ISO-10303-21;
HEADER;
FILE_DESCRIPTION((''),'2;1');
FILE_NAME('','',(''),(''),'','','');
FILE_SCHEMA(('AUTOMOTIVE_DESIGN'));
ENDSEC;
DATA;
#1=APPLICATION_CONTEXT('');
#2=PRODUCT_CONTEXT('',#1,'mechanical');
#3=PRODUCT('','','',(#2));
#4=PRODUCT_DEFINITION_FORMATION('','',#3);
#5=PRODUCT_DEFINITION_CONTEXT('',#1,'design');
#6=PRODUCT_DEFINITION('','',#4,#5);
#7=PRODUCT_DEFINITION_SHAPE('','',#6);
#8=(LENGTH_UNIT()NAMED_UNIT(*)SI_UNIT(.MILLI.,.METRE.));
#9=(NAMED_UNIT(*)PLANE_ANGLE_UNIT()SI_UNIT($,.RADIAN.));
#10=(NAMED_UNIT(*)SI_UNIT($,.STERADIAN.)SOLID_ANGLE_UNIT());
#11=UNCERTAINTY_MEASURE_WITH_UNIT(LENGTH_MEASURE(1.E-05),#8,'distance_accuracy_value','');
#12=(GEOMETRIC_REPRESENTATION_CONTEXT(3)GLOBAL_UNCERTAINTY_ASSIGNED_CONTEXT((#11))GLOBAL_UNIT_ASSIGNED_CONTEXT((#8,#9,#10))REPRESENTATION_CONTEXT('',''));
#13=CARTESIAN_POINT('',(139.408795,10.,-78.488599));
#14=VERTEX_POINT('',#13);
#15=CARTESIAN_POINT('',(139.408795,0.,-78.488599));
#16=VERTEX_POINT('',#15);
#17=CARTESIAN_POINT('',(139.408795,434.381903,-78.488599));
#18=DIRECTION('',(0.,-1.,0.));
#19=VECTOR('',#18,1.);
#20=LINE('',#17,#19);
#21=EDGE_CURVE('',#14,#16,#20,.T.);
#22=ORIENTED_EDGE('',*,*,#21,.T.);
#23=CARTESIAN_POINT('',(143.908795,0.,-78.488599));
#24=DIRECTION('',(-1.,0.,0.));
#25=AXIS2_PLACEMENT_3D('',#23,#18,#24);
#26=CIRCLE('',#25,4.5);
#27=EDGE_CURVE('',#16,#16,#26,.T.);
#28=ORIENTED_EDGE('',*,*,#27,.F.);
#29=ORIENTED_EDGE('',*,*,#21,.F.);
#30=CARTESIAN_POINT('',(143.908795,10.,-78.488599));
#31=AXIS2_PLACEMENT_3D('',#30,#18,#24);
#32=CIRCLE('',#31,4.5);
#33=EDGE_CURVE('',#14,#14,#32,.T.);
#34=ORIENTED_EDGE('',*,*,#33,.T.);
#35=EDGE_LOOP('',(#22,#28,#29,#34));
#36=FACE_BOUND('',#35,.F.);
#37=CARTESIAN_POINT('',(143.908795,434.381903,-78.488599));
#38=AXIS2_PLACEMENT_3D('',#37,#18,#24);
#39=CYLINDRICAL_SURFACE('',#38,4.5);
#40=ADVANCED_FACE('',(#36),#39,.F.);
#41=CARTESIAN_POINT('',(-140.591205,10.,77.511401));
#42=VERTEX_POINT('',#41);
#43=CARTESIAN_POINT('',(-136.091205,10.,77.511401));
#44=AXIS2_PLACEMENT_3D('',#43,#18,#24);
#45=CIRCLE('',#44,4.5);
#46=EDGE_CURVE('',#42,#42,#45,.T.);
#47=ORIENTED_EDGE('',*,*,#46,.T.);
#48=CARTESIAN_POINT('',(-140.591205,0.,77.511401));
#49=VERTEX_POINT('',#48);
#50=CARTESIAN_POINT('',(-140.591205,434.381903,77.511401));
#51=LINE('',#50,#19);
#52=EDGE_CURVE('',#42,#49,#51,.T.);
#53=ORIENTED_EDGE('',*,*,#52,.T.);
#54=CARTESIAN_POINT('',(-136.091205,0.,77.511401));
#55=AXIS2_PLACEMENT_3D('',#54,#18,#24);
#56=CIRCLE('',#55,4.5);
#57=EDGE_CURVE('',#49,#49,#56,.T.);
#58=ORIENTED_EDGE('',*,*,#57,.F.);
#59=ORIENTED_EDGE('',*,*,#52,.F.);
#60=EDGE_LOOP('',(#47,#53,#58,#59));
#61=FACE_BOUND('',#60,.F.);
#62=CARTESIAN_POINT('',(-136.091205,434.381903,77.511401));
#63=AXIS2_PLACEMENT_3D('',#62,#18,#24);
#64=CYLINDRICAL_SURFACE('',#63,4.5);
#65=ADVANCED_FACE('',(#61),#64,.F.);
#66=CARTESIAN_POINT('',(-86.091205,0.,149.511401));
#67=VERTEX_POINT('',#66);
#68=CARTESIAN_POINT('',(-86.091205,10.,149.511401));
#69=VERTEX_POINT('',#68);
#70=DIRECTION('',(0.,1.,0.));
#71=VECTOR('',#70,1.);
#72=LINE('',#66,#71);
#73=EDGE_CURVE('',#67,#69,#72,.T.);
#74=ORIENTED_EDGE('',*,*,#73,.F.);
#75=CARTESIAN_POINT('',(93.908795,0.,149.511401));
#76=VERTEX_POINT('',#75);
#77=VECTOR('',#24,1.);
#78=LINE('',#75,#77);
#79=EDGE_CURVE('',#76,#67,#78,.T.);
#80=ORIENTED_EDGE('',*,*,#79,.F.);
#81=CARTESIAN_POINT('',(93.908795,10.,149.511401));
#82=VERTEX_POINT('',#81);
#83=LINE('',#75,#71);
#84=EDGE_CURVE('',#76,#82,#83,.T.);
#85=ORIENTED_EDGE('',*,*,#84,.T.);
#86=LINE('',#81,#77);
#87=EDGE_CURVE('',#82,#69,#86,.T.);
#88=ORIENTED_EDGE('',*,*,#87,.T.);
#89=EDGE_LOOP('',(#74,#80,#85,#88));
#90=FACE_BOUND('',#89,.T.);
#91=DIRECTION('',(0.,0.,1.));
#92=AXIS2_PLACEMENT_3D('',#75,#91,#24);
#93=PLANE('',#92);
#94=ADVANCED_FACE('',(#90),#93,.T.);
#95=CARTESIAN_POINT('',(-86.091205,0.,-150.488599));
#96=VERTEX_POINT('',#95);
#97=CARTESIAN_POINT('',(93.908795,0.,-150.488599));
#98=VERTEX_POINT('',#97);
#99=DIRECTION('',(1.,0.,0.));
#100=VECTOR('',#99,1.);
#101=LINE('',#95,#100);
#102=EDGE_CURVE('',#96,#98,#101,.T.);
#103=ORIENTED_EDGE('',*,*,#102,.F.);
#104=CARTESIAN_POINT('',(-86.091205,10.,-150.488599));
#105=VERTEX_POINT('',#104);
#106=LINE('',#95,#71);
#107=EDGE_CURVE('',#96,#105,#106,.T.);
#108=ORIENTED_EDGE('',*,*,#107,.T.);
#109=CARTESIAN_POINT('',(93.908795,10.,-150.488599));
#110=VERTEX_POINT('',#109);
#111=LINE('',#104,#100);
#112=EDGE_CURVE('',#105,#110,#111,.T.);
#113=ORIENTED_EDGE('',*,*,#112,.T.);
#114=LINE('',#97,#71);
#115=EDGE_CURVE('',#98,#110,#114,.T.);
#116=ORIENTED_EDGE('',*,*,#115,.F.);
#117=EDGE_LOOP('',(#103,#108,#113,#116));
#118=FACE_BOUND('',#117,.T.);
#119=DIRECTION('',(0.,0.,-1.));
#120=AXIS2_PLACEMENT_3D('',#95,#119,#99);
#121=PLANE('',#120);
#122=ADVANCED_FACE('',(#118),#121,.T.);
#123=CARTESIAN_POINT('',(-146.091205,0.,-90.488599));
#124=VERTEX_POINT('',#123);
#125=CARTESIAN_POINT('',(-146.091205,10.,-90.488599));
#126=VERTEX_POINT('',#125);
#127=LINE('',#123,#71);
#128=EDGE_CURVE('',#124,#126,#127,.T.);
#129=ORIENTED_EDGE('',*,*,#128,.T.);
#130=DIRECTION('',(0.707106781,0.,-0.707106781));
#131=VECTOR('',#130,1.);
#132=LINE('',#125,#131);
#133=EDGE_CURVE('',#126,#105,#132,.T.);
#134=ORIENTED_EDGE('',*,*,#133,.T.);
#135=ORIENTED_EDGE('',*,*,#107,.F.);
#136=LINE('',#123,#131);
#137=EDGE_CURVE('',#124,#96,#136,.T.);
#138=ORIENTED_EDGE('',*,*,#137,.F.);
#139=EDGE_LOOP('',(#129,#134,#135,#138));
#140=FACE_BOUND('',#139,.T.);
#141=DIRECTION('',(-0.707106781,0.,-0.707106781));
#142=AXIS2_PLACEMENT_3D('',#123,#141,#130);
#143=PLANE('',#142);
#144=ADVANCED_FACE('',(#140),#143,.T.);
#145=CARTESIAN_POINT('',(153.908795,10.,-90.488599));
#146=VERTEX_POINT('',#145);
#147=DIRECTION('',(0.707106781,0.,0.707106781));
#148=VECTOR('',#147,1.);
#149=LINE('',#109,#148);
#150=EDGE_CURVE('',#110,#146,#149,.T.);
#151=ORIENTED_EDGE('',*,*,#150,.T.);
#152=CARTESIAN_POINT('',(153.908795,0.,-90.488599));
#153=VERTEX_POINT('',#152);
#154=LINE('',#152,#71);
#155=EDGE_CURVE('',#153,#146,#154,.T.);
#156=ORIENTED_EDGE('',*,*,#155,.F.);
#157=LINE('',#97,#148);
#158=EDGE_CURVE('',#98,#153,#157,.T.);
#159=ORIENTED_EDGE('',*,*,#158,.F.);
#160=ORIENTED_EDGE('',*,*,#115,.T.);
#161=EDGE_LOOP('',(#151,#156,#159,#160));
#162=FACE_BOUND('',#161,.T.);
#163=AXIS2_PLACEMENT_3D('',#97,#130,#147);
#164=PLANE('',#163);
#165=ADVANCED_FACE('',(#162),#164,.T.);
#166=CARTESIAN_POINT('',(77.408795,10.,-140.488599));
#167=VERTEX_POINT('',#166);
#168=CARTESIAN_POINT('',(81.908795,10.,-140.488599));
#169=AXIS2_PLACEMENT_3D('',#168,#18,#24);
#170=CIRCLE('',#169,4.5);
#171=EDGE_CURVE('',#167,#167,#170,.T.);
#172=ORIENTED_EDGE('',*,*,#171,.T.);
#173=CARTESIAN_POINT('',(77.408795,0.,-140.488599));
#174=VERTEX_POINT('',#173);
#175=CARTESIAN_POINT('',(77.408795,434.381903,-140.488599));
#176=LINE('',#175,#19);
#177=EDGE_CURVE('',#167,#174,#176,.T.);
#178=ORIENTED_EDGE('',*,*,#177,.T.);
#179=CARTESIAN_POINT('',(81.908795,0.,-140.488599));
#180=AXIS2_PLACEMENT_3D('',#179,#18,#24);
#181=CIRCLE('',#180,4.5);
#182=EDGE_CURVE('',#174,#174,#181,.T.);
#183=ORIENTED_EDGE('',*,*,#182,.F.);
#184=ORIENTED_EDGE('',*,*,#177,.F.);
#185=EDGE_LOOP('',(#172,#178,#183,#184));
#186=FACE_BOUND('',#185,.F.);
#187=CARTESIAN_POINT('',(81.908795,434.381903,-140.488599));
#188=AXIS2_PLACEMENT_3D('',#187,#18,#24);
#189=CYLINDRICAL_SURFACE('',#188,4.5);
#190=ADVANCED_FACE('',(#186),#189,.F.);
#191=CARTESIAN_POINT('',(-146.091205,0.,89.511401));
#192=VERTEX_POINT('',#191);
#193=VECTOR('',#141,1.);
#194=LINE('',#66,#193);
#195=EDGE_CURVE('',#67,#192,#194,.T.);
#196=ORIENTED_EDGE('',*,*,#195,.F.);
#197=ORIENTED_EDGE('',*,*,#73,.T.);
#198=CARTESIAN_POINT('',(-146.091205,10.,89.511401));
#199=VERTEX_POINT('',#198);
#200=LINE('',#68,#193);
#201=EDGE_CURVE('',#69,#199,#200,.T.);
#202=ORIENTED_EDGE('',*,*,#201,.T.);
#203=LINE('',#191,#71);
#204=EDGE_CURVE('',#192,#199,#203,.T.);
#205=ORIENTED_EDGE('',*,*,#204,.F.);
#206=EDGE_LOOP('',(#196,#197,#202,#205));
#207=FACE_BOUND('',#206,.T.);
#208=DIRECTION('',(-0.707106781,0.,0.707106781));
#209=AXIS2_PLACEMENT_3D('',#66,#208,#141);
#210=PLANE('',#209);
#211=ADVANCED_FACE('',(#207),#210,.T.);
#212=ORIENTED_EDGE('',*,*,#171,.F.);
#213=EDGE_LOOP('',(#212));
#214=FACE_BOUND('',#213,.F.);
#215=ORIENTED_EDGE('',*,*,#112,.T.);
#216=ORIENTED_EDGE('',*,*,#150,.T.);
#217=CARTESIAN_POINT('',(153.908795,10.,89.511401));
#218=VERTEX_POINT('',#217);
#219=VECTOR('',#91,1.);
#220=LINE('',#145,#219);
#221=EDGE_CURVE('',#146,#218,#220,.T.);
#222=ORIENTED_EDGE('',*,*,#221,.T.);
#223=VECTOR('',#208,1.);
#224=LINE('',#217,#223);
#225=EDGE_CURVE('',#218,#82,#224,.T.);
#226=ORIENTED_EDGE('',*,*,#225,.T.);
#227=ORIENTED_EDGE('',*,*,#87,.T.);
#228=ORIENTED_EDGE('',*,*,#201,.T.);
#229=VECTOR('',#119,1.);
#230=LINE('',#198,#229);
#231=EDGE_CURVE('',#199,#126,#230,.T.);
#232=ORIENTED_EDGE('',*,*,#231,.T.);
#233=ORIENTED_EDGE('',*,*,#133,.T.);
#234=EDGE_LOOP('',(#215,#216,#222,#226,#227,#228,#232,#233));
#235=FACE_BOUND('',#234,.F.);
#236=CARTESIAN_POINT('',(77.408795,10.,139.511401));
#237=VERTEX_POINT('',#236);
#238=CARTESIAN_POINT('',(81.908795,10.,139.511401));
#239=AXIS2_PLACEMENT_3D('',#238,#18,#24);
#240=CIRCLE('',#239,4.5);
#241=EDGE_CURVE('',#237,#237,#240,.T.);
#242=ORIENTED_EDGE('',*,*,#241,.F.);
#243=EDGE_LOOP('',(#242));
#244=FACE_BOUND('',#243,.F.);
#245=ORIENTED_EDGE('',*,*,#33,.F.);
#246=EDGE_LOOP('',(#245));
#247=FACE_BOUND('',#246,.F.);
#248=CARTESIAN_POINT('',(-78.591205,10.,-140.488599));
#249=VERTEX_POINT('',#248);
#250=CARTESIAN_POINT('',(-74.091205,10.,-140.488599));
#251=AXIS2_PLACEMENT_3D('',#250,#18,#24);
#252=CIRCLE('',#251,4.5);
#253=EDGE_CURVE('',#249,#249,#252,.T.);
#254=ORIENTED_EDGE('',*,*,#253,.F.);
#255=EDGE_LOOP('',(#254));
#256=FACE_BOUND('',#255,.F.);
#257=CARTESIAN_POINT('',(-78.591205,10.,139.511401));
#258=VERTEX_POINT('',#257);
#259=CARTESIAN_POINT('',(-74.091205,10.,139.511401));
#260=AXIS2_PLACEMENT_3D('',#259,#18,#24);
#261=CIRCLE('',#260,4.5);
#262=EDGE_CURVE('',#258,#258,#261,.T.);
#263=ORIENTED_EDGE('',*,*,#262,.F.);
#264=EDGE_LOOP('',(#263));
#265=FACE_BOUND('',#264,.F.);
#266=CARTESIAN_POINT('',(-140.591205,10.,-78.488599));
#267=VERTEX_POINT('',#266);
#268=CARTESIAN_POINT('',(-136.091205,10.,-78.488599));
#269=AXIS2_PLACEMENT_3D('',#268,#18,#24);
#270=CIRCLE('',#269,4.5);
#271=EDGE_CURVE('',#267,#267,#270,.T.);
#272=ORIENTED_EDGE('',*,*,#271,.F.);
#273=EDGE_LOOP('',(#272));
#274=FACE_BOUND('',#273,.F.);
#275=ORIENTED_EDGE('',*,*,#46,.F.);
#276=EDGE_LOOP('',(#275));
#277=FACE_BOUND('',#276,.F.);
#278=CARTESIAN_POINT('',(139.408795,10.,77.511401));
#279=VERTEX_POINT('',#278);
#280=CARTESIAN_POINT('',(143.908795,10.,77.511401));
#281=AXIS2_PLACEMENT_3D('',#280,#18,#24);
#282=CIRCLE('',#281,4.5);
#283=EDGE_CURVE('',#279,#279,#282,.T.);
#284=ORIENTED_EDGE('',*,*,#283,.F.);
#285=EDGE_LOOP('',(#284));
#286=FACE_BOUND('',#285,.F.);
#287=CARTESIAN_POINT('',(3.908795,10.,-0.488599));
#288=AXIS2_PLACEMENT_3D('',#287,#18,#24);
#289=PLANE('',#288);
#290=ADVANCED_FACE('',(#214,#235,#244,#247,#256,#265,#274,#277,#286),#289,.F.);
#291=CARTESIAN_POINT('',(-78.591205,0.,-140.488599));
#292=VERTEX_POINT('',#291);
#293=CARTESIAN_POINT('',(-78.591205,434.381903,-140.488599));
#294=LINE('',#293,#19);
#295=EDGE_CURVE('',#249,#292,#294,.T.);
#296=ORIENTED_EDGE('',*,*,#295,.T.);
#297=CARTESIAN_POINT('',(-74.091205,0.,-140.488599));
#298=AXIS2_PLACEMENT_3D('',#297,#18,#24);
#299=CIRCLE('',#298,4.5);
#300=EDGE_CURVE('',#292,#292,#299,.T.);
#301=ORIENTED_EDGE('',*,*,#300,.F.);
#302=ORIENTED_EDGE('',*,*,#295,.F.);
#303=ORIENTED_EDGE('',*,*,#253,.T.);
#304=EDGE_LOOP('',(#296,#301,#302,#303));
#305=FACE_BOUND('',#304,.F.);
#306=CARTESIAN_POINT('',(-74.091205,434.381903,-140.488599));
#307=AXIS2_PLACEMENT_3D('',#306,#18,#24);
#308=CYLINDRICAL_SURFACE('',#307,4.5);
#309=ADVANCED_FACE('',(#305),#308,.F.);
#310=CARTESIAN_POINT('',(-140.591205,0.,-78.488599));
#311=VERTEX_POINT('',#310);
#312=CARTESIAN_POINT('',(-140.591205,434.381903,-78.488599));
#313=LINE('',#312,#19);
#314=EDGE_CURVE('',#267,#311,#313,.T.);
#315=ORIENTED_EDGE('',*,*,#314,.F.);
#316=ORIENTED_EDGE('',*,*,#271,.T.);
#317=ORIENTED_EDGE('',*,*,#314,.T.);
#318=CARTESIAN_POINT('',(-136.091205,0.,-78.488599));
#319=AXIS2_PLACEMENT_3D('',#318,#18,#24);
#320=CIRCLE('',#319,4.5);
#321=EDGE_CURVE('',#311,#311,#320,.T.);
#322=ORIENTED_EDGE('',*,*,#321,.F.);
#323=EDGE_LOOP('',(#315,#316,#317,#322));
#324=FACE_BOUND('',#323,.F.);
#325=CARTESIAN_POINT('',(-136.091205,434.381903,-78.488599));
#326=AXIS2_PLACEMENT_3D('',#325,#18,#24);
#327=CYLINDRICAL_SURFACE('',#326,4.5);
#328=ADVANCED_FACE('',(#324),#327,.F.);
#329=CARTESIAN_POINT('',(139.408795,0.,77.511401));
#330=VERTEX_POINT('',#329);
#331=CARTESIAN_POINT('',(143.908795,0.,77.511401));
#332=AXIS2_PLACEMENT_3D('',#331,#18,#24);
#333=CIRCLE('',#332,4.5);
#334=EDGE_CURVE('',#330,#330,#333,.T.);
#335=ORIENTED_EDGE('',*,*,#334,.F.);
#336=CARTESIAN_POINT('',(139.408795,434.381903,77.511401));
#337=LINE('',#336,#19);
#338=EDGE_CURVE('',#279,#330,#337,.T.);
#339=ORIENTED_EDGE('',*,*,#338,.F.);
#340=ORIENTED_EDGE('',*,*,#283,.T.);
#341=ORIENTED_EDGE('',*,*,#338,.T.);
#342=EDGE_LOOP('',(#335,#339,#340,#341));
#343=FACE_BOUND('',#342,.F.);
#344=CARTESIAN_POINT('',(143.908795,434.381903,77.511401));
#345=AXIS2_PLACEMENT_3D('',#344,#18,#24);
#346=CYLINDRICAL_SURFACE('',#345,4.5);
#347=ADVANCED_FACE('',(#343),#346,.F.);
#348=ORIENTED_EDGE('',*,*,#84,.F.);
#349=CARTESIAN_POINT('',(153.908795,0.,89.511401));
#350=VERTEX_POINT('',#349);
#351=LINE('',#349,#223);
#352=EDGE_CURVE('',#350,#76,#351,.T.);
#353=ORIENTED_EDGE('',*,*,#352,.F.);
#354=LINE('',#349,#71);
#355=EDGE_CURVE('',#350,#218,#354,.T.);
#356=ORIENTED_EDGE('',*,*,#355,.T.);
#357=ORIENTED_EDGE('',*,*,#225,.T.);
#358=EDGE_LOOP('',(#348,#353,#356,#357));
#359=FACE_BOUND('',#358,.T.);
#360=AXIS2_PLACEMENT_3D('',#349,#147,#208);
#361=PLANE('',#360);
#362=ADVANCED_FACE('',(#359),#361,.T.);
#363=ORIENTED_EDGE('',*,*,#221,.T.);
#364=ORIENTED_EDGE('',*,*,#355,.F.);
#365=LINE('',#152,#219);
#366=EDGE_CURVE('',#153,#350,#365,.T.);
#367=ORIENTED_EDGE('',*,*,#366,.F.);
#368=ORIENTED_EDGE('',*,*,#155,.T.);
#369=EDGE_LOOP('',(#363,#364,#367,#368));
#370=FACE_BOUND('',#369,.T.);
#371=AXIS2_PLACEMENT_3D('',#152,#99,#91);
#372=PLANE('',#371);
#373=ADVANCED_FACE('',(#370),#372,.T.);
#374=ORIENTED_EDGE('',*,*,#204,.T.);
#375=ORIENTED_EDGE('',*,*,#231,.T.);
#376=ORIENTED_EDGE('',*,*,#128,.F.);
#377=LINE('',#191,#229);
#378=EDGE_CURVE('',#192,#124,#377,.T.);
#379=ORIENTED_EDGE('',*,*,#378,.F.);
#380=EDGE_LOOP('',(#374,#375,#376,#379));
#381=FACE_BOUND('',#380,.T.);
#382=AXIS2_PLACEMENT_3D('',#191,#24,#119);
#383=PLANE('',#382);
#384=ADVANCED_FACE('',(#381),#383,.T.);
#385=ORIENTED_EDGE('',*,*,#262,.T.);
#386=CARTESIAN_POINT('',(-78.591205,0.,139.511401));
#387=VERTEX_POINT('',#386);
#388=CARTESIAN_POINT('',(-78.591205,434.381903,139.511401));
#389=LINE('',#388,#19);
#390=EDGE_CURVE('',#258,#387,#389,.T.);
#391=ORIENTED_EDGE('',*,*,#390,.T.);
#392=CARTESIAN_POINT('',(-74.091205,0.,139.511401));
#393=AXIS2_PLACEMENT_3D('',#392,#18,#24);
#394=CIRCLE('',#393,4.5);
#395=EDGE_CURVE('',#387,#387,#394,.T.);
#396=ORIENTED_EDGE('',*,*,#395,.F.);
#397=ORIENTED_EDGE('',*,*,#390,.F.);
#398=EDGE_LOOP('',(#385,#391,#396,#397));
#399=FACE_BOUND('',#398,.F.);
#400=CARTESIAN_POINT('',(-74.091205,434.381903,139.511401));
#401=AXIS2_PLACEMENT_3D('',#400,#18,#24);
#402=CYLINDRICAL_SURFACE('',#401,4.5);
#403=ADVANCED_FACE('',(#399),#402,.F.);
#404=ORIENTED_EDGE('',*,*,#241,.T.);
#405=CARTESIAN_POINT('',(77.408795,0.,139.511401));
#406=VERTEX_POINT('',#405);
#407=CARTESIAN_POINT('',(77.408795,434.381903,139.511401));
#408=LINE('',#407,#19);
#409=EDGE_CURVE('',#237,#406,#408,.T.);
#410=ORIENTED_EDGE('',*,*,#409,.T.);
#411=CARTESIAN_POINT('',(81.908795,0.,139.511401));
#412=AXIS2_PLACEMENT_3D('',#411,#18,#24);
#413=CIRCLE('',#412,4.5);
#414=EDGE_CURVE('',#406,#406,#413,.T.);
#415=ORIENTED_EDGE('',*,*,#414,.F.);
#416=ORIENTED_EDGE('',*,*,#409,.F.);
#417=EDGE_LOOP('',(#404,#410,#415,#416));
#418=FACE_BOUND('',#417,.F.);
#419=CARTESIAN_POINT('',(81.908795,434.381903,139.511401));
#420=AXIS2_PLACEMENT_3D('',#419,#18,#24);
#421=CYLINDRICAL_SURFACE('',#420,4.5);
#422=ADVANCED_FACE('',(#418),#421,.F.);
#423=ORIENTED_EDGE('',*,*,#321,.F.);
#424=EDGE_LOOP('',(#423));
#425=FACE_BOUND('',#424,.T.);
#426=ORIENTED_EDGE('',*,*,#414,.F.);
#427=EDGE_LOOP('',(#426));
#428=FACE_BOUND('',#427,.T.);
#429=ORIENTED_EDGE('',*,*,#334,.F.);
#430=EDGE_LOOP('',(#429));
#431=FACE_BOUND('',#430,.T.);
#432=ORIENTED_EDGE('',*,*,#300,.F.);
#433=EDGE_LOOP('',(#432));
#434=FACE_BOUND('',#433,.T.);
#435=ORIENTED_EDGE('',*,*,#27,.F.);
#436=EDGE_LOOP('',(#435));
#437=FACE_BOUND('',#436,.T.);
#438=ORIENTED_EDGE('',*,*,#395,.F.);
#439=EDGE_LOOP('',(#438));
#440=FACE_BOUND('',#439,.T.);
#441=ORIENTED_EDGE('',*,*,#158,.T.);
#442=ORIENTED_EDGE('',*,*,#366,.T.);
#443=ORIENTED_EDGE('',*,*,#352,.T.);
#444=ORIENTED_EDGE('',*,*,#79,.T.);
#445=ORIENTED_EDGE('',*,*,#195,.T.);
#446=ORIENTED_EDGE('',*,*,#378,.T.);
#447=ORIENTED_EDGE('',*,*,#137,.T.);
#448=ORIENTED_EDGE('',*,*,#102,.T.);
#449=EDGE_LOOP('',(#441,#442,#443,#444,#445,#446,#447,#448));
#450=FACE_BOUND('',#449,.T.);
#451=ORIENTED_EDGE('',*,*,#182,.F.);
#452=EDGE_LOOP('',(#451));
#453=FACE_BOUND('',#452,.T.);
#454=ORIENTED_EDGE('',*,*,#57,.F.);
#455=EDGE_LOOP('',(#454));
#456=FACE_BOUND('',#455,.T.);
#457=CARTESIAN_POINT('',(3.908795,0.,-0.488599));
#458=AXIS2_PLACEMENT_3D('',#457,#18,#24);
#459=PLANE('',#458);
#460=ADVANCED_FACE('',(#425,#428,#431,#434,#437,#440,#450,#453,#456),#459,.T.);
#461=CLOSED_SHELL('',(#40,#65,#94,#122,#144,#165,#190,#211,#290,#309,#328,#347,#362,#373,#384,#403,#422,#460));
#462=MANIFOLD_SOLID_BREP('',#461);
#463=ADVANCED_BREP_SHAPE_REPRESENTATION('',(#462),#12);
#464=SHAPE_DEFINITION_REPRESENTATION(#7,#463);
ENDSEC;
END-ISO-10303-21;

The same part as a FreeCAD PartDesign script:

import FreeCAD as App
import Part
import Sketcher
from FreeCAD import Vector

doc = App.newDocument("Part")
body = doc.addObject("PartDesign::Body", "Body")

# Sketch on XZ plane
sketch1 = body.newObject("Sketcher::SketchObject", "Sketch")
sketch1.AttachmentSupport = (doc.getObject("XZ_Plane"), [""])
sketch1.MapMode = "FlatFace"
sketch1.addGeometry([
    Part.LineSegment(Vector(-86, -150, 0), Vector(-146, -90, 0)),  # 0
    Part.LineSegment(Vector(-146, -90, 0), Vector(-146, 90, 0)),  # 1
    Part.LineSegment(Vector(-146, 90, 0), Vector(-86, 150, 0)),  # 2
    Part.LineSegment(Vector(-86, 150, 0), Vector(94, 150, 0)),  # 3
    Part.LineSegment(Vector(94, 150, 0), Vector(154, 90, 0)),  # 4
    Part.LineSegment(Vector(154, 90, 0), Vector(154, -90, 0)),  # 5
    Part.LineSegment(Vector(154, -90, 0), Vector(94, -150, 0)),  # 6
    Part.LineSegment(Vector(94, -150, 0), Vector(-86, -150, 0)),  # 7
], False)
sketch1.addConstraint([
    Sketcher.Constraint("Coincident", 0, 2, 1, 1),
    Sketcher.Constraint("Coincident", 1, 2, 2, 1),
    Sketcher.Constraint("Coincident", 2, 2, 3, 1),
    Sketcher.Constraint("Coincident", 3, 2, 4, 1),
    Sketcher.Constraint("Coincident", 4, 2, 5, 1),
    Sketcher.Constraint("Coincident", 5, 2, 6, 1),
    Sketcher.Constraint("Coincident", 6, 2, 7, 1),
    Sketcher.Constraint("Coincident", 7, 2, 0, 1),
    Sketcher.Constraint("Vertical", 1),
    Sketcher.Constraint("Horizontal", 3),
    Sketcher.Constraint("Vertical", 5),
    Sketcher.Constraint("Horizontal", 7),
    Sketcher.Constraint("Perpendicular", 0, 2),
    Sketcher.Constraint("Perpendicular", 2, 4),
    Sketcher.Constraint("Perpendicular", 4, 6),
    Sketcher.Constraint("Horizontal", 1, 2, 4, 2),
    Sketcher.Constraint("Horizontal", 0, 2, 5, 2),
    Sketcher.Constraint("Vertical", 3, 2, 6, 2),
    Sketcher.Constraint("Vertical", 2, 2, 7, 2),
    Sketcher.Constraint("Equal", 7, 1),
    Sketcher.Constraint("DistanceX", 3, 1, 3, 2, 180.0),
    Sketcher.Constraint("DistanceX", 1, 2, 2, 2, 60.0),
    Sketcher.Constraint("DistanceY", 0, 2, -1, 1, 90.488599),
    Sketcher.Constraint("DistanceX", 0, 2, -1, 1, 146.091205),
])
pad1 = body.newObject("PartDesign::Pad", "Pad")
pad1.Profile = sketch1
pad1.Length = 10
pad1.Reversed = True

# Sketch on XZ plane
sketch2 = body.newObject("Sketcher::SketchObject", "Sketch001")
sketch2.AttachmentSupport = (doc.getObject("XZ_Plane"), [""])
sketch2.MapMode = "FlatFace"
sketch2.AttachmentOffset = App.Placement(Vector(0, 0, -10), App.Rotation())
sketch2.addGeometry([
    Part.Circle(Vector(-136.1, -78.5, 0), Vector(0, 0, 1), 4.5),  # 0
    Part.Circle(Vector(-74.1, -140.5, 0), Vector(0, 0, 1), 4.5),  # 1
    Part.Circle(Vector(81.9, -140.5, 0), Vector(0, 0, 1), 4.5),  # 2
    Part.Circle(Vector(143.9, -78.5, 0), Vector(0, 0, 1), 4.5),  # 3
    Part.Circle(Vector(143.9, 77.5, 0), Vector(0, 0, 1), 4.5),  # 4
    Part.Circle(Vector(81.9, 139.5, 0), Vector(0, 0, 1), 4.5),  # 5
    Part.Circle(Vector(-74.1, 139.5, 0), Vector(0, 0, 1), 4.5),  # 6
    Part.Circle(Vector(-136.1, 77.5, 0), Vector(0, 0, 1), 4.5),  # 7
], False)
sketch2.addConstraint([
    Sketcher.Constraint("Equal", 0, 1),
    Sketcher.Constraint("Equal", 1, 2),
    Sketcher.Constraint("Equal", 2, 3),
    Sketcher.Constraint("Equal", 3, 4),
    Sketcher.Constraint("Equal", 4, 5),
    Sketcher.Constraint("Equal", 5, 6),
    Sketcher.Constraint("Equal", 6, 7),
    Sketcher.Constraint("Horizontal", 1, 3, 2, 3),
    Sketcher.Constraint("Horizontal", 0, 3, 3, 3),
    Sketcher.Constraint("Horizontal", 5, 3, 6, 3),
    Sketcher.Constraint("Horizontal", 4, 3, 7, 3),
    Sketcher.Constraint("Vertical", 3, 3, 4, 3),
    Sketcher.Constraint("Vertical", 2, 3, 5, 3),
    Sketcher.Constraint("Vertical", 1, 3, 6, 3),
    Sketcher.Constraint("Vertical", 0, 3, 7, 3),
    Sketcher.Constraint("Diameter", 0, 9.0),
    Sketcher.Constraint("DistanceX", 0, 3, 1, 3, 62.0),
    Sketcher.Constraint("DistanceY", 1, 3, 0, 3, 62.0),
    Sketcher.Constraint("DistanceX", 1, 3, 2, 3, 156.0),
    Sketcher.Constraint("DistanceX", 2, 3, 3, 3, 62.0),
    Sketcher.Constraint("DistanceY", 3, 3, 4, 3, 156.0),
    Sketcher.Constraint("DistanceY", 4, 3, 5, 3, 62.0),
    Sketcher.Constraint("DistanceY", 0, 3, -1, 1, 78.488599),
    Sketcher.Constraint("DistanceX", 0, 3, -1, 1, 136.091205),
])
doc.recompute()
hole = body.newObject("PartDesign::Hole", "Hole")
hole.Profile = sketch2
hole.ThreadType = "None"
hole.Diameter = 9
hole.DepthType = "ThroughAll"
hole.Reversed = True

doc.recompute()
